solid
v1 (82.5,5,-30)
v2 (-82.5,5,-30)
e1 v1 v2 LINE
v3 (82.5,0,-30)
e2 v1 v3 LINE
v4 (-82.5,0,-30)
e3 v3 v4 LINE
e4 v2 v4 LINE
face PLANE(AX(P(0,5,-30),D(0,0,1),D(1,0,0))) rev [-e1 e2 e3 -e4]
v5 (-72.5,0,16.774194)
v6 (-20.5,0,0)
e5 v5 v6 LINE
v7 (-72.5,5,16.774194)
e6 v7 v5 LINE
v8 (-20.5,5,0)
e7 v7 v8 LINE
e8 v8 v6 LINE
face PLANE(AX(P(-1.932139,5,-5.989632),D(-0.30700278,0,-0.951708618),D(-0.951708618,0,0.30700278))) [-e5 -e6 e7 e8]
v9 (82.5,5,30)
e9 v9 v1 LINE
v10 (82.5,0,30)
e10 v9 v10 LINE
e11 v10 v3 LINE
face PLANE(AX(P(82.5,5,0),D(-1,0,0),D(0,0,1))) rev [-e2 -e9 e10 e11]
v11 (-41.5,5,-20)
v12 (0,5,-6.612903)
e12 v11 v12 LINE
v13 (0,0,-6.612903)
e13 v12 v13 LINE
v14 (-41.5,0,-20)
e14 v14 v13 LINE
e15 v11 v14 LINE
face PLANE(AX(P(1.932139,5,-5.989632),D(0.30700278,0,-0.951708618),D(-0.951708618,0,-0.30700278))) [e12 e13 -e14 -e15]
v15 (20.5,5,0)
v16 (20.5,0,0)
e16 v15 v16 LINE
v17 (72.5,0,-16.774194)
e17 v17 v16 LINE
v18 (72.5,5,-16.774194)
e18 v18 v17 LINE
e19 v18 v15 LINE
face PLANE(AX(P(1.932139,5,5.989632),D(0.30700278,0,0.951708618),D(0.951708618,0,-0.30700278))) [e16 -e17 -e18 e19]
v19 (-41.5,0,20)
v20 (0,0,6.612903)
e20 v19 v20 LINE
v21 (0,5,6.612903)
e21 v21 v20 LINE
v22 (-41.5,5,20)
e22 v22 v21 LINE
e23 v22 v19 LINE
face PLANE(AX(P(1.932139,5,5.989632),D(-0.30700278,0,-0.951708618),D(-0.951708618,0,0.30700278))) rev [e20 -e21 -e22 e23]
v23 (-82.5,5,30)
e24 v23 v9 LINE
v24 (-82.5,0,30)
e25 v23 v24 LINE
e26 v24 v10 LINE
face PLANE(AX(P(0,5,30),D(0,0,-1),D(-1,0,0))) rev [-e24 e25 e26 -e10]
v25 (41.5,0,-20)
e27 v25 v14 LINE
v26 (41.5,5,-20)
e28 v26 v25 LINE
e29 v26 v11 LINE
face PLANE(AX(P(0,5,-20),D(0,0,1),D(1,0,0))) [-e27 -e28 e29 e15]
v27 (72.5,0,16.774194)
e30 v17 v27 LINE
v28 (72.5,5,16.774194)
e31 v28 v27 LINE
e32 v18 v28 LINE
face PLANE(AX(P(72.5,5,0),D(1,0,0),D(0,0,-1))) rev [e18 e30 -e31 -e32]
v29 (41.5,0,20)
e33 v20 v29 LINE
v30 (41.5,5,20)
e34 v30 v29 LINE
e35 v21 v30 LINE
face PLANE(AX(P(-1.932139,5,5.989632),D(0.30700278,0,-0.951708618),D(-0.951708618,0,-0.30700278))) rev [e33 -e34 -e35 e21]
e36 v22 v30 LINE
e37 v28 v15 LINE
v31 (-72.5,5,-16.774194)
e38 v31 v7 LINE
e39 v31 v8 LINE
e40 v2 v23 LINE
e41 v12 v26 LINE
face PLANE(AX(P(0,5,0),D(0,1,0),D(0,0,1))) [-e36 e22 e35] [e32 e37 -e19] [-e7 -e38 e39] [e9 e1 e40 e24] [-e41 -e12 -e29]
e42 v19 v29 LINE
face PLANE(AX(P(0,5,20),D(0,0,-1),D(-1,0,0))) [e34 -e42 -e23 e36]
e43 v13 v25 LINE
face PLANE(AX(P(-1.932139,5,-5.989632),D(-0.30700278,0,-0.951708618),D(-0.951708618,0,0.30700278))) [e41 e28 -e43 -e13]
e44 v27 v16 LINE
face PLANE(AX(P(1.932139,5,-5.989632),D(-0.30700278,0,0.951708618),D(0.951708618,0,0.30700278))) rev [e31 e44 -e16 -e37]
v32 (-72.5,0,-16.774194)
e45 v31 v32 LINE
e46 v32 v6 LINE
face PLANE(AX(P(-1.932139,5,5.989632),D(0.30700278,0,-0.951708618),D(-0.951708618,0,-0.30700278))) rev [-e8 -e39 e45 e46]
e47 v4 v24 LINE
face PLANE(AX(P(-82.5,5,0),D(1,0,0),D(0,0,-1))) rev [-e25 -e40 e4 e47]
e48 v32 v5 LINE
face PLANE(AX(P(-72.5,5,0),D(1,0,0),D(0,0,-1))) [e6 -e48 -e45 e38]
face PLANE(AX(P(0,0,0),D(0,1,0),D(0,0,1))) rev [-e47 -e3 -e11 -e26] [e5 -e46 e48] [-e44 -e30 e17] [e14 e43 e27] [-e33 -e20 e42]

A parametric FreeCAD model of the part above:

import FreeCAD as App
import Part
import Sketcher
from FreeCAD import Vector


def add_polygon(sketch, points):
    """Adds a closed chain of lines whose ends are joined by coincident constraints."""
    first, n = sketch.GeometryCount, len(points)
    for a, b in zip(points, points[1:] + points[:1]):
        sketch.addGeometry(Part.LineSegment(App.Vector(*a, 0), App.Vector(*b, 0)), False)
    for i in range(n):
        sketch.addConstraint(Sketcher.Constraint("Coincident", first + i, 2, first + (i + 1) % n, 1))

doc = App.newDocument("Part")
body = doc.addObject("PartDesign::Body", "Body")

# Sketch on XZ plane
sketch1 = body.newObject("Sketcher::SketchObject", "Sketch")
sketch1.AttachmentSupport = (doc.getObject("XZ_Plane"), [""])
sketch1.MapMode = "FlatFace"
add_polygon(sketch1, [(-82.5, -30), (-82.5, 30), (82.5, 30), (82.5, -30)])  # lines 0-3
add_polygon(sketch1, [(-41.5, 20), (0, 6.612903), (41.5, 20)])  # lines 4-6
add_polygon(sketch1, [(-72.5, 16.774194), (-72.5, -16.774194), (-20.5, 0)])  # lines 7-9
add_polygon(sketch1, [(20.5, 0), (72.5, -16.774194), (72.5, 16.774194)])  # lines 10-12
add_polygon(sketch1, [(0, -6.612903), (-41.5, -20), (41.5, -20)])  # lines 13-15
sketch1.addConstraint([
    Sketcher.Constraint("Vertical", 0),
    Sketcher.Constraint("Horizontal", 1),
    Sketcher.Constraint("Vertical", 2),
    Sketcher.Constraint("Horizontal", 3),
    Sketcher.Constraint("Horizontal", 6),
    Sketcher.Constraint("Vertical", 7),
    Sketcher.Constraint("Vertical", 11),
    Sketcher.Constraint("Horizontal", 14),
    Sketcher.Constraint("Symmetric", 0, 2, 2, 2, -1, 1),
    Sketcher.Constraint("Symmetric", 9, 2, 10, 2, -1, 1),
    Sketcher.Constraint("Symmetric", 8, 2, 12, 2, -1, 1),
    Sketcher.Constraint("Symmetric", 5, 2, 13, 2, -1, 1),
    Sketcher.Constraint("Symmetric", 4, 2, 15, 2, -1, 1),
    Sketcher.Constraint("PointOnObject", 4, 2, -2),
    Sketcher.Constraint("PointOnObject", 8, 2, -1),
    Sketcher.Constraint("Parallel", 5, 8),
    Sketcher.Constraint("Parallel", 4, 9),
    Sketcher.Constraint("Parallel", 8, 12),
    Sketcher.Constraint("Parallel", 10, 15),
    Sketcher.Constraint("Horizontal", 7, 2, 10, 2),
    Sketcher.Constraint("DistanceX", 1, 1, 1, 2, 165.0),
    Sketcher.Constraint("DistanceX", 6, 2, 6, 1, 83.0),
    Sketcher.Constraint("DistanceY", 0, 1, 0, 2, 60.0),
    Sketcher.Constraint("DistanceY", -1, 1, 5, 2, 20.0),
    Sketcher.Constraint("DistanceX", 3, 2, 7, 2, 10.0),
    Sketcher.Constraint("DistanceX", 6, 2, 8, 2, 21.0),
    Sketcher.Constraint("DistanceY", 7, 2, 7, 1, 33.548387),
])
pad1 = body.newObject("PartDesign::Pad", "Pad")
pad1.Profile = sketch1
pad1.Length = 5
pad1.Reversed = True

doc.recompute()
